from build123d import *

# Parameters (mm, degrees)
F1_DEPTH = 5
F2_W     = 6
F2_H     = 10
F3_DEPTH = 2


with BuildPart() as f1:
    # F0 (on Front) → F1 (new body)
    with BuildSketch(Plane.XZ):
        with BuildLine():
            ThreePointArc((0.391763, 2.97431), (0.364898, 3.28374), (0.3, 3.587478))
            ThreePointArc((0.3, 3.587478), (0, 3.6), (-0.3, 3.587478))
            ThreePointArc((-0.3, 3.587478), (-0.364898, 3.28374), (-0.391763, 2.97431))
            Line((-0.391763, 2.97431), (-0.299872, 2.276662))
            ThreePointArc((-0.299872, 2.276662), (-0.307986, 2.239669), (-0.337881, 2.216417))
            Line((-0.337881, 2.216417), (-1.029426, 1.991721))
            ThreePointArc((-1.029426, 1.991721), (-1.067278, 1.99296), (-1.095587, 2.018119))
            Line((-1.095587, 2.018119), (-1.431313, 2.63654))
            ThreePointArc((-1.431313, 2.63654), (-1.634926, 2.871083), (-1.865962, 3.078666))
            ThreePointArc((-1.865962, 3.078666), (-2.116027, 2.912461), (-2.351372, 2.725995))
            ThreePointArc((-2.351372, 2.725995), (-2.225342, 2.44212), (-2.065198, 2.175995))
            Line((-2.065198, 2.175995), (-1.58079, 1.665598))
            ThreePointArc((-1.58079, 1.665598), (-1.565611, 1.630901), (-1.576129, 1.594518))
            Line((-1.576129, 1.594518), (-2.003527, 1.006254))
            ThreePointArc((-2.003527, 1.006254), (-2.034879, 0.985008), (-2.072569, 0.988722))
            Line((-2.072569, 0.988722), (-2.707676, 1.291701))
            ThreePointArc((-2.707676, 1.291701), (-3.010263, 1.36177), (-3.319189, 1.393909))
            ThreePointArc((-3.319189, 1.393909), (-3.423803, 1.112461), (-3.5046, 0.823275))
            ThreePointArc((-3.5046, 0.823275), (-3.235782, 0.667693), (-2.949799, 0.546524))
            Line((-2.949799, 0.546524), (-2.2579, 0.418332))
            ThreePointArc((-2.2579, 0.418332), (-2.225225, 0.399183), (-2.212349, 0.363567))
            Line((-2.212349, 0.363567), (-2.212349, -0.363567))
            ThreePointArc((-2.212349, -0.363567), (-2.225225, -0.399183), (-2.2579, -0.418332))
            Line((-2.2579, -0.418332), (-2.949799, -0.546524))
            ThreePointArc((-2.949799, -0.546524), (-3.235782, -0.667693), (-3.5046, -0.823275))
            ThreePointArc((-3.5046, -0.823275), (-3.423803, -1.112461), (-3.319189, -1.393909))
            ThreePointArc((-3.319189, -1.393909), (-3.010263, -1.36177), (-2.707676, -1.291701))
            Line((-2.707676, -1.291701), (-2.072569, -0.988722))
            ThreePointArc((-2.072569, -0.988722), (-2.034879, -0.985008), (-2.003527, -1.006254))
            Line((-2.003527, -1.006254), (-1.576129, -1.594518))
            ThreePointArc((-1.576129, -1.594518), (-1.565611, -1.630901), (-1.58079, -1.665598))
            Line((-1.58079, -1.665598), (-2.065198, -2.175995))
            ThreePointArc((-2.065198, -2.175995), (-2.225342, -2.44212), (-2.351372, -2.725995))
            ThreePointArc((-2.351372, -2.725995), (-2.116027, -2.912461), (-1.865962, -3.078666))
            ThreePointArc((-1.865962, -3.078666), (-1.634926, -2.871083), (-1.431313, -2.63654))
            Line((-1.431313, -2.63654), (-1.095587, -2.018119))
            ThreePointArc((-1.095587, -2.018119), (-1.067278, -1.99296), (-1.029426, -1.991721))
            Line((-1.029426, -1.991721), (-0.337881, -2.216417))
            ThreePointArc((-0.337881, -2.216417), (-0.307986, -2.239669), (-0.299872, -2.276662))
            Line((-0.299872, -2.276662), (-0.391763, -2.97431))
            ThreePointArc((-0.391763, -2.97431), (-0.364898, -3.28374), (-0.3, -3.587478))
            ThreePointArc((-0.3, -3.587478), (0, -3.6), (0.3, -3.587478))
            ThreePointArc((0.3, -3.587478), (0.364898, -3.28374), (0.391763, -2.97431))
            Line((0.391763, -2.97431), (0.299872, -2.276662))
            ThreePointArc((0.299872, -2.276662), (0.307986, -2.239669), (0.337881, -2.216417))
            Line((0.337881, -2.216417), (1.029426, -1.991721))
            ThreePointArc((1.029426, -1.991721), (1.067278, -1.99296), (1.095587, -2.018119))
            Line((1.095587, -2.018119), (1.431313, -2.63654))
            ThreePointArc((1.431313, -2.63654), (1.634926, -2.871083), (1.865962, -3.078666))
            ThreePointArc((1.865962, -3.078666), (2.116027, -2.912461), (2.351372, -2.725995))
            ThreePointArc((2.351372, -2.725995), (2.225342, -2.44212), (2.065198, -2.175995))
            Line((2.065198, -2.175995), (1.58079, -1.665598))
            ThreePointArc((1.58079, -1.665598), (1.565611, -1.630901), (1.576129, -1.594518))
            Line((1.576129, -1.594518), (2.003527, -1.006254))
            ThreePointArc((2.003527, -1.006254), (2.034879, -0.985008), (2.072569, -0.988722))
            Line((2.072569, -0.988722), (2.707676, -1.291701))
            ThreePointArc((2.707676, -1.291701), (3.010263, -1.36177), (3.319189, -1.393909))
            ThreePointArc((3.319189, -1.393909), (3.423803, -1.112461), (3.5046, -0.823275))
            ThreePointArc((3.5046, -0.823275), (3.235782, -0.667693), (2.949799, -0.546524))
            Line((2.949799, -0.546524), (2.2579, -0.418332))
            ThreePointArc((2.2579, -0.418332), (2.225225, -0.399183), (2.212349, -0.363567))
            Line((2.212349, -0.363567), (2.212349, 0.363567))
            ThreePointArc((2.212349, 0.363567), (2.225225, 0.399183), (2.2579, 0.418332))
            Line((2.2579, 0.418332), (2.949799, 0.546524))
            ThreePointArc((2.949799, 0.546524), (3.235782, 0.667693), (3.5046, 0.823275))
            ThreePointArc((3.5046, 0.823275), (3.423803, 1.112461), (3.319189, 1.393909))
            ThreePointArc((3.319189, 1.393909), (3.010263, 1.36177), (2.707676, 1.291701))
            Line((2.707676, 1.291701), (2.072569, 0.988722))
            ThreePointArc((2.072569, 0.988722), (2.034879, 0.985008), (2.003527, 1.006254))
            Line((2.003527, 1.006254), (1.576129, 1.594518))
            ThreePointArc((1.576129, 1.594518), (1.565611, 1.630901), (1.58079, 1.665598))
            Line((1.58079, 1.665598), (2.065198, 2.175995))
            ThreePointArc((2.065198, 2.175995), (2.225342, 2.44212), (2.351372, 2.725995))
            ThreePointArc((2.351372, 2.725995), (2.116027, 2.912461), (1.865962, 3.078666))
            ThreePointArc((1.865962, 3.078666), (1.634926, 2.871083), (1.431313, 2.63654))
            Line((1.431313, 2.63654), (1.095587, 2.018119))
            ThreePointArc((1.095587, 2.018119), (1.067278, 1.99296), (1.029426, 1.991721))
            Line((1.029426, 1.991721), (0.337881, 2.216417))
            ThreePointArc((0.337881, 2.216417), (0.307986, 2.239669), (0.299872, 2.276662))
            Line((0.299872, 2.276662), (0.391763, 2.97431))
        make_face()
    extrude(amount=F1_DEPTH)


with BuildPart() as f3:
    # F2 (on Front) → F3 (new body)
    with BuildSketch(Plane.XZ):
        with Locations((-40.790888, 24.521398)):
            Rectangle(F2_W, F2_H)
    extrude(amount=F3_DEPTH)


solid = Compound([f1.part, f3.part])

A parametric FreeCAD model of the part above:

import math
import FreeCAD as App
import Part
import Sketcher
from FreeCAD import Vector
Q = App.Units.Quantity

doc = App.newDocument("Part")
body = doc.addObject("PartDesign::Body", "Body")

# Sketch on XZ plane
sketch1 = body.newObject("Sketcher::SketchObject", "Sketch")
sketch1.AttachmentSupport = (doc.getObject("XZ_Plane"), [""])
sketch1.MapMode = "FlatFace"
sketch1.addGeometry([
    Part.ArcOfCircle(Part.Circle(Vector(-2.115982, 2.912466, 0), Vector(0, 0, 1), 2.508507), math.radians(1.412685), math.radians(15.61006)),  # 0
    Part.ArcOfCircle(Part.Circle(Vector(0, 0.000064, 0), Vector(0, 0, 1), 3.599936), math.radians(85.219723), math.radians(94.780277)),  # 1
    Part.ArcOfCircle(Part.Circle(Vector(2.115982, 2.912466, 0), Vector(0, 0, 1), 2.508507), math.radians(164.38994), math.radians(178.587315)),  # 2
    Part.LineSegment(Vector(-0.391763, 2.97431, 0), Vector(-0.299872, 2.276662, 0)),  # 3
    Part.ArcOfCircle(Part.Circle(Vector(-0.355091, 2.269387, 0), Vector(0, 0, 1), 0.055696), math.radians(-72.00146), math.radians(7.505221)),  # 4
    Part.LineSegment(Vector(-0.337881, 2.216417, 0), Vector(-1.029426, 1.991721, 0)),  # 5
    Part.ArcOfCircle(Part.Circle(Vector(-1.046638, 2.04469, 0), Vector(0, 0, 1), 0.055695), math.radians(-151.50543), math.radians(-71.998212)),  # 6
    Part.LineSegment(Vector(-1.095587, 2.018119, 0), Vector(-1.431313, 2.63654, 0)),  # 7
    Part.ArcOfCircle(Part.Circle(Vector(-3.423796, 1.112465, 0), Vector(0, 0, 1), 2.508544), math.radians(37.412821), math.radians(51.609984)),  # 8
    Part.ArcOfCircle(Part.Circle(Vector(-0.000014, 0.000018, 0), Vector(0, 0, 1), 3.599977), math.radians(121.219779), math.radians(130.780219)),  # 9
    Part.ArcOfCircle(Part.Circle(Vector(0.00002, 3.600012, 0), Vector(0, 0, 1), 2.508576), math.radians(-159.609796), math.radians(-145.412808)),  # 10
    Part.LineSegment(Vector(-2.065198, 2.175995, 0), Vector(-1.58079, 1.665598, 0)),  # 11
    Part.ArcOfCircle(Part.Circle(Vector(-1.621188, 1.627256, 0), Vector(0, 0, 1), 0.055697), math.radians(-36.000445), math.radians(43.50393)),  # 12
    Part.LineSegment(Vector(-1.576129, 1.594518, 0), Vector(-2.003527, 1.006254, 0)),  # 13
    Part.ArcOfCircle(Part.Circle(Vector(-2.048587, 1.038992, 0), Vector(0, 0, 1), 0.055698), math.radians(-115.503625), math.radians(-36.000171)),  # 14
    Part.LineSegment(Vector(-2.072569, 0.988722, 0), Vector(-2.707676, 1.291701, 0)),  # 15
    Part.ArcOfCircle(Part.Circle(Vector(-3.423802, -1.112444, 0), Vector(0, 0, 1), 2.508536), math.radians(73.41272), math.radians(87.609917)),  # 16
    Part.ArcOfCircle(Part.Circle(Vector(0.000148, -0.000053, 0), Vector(0, 0, 1), 3.600157), math.radians(157.219944), math.radians(166.779915)),  # 17
    Part.ArcOfCircle(Part.Circle(Vector(-2.116041, 2.912432, 0), Vector(0, 0, 1), 2.50852), math.radians(-123.610016), math.radians(-109.412715)),  # 18
    Part.LineSegment(Vector(-2.949799, 0.546524, 0), Vector(-2.2579, 0.418332, 0)),  # 19
    Part.ArcOfCircle(Part.Circle(Vector(-2.268046, 0.363567, 0), Vector(0, 0, 1), 0.055697), math.radians(0.000401), math.radians(79.503842)),  # 20
    Part.LineSegment(Vector(-2.212349, 0.363567, 0), Vector(-2.212349, -0.363567, 0)),  # 21
    Part.ArcOfCircle(Part.Circle(Vector(-2.268046, -0.363567, 0), Vector(0, 0, 1), 0.055697), math.radians(-79.503842), math.radians(-0.000401)),  # 22
    Part.LineSegment(Vector(-2.2579, -0.418332, 0), Vector(-2.949799, -0.546524, 0)),  # 23
    Part.ArcOfCircle(Part.Circle(Vector(-2.116041, -2.912432, 0), Vector(0, 0, 1), 2.50852), math.radians(109.412715), math.radians(123.610016)),  # 24
    Part.ArcOfCircle(Part.Circle(Vector(0.000148, 0.000053, 0), Vector(0, 0, 1), 3.600157), math.radians(-166.779915), math.radians(-157.219944)),  # 25
    Part.ArcOfCircle(Part.Circle(Vector(-3.423802, 1.112444, 0), Vector(0, 0, 1), 2.508536), math.radians(-87.609917), math.radians(-73.41272)),  # 26
    Part.LineSegment(Vector(-2.707676, -1.291701, 0), Vector(-2.072569, -0.988722, 0)),  # 27
    Part.ArcOfCircle(Part.Circle(Vector(-2.048587, -1.038992, 0), Vector(0, 0, 1), 0.055698), math.radians(36.000171), math.radians(115.503625)),  # 28
    Part.LineSegment(Vector(-2.003527, -1.006254, 0), Vector(-1.576129, -1.594518, 0)),  # 29
    Part.ArcOfCircle(Part.Circle(Vector(-1.621188, -1.627256, 0), Vector(0, 0, 1), 0.055697), math.radians(-43.50393), math.radians(36.000445)),  # 30
    Part.LineSegment(Vector(-1.58079, -1.665598, 0), Vector(-2.065198, -2.175995, 0)),  # 31
    Part.ArcOfCircle(Part.Circle(Vector(0.00002, -3.600012, 0), Vector(0, 0, 1), 2.508576), math.radians(145.412808), math.radians(159.609796)),  # 32
    Part.ArcOfCircle(Part.Circle(Vector(-0.000014, -0.000018, 0), Vector(0, 0, 1), 3.599977), math.radians(-130.780219), math.radians(-121.219779)),  # 33
    Part.ArcOfCircle(Part.Circle(Vector(-3.423796, -1.112465, 0), Vector(0, 0, 1), 2.508544), math.radians(-51.609984), math.radians(-37.412821)),  # 34
    Part.LineSegment(Vector(-1.431313, -2.63654, 0), Vector(-1.095587, -2.018119, 0)),  # 35
    Part.ArcOfCircle(Part.Circle(Vector(-1.046638, -2.04469, 0), Vector(0, 0, 1), 0.055695), math.radians(71.998212), math.radians(151.50543)),  # 36
    Part.LineSegment(Vector(-1.029426, -1.991721, 0), Vector(-0.337881, -2.216417, 0)),  # 37
    Part.ArcOfCircle(Part.Circle(Vector(-0.355091, -2.269387, 0), Vector(0, 0, 1), 0.055696), math.radians(-7.505221), math.radians(72.00146)),  # 38
    Part.LineSegment(Vector(-0.299872, -2.276662, 0), Vector(-0.391763, -2.97431, 0)),  # 39
    Part.ArcOfCircle(Part.Circle(Vector(2.115982, -2.912466, 0), Vector(0, 0, 1), 2.508507), math.radians(-178.587315), math.radians(-164.38994)),  # 40
    Part.ArcOfCircle(Part.Circle(Vector(0, -0.000064, 0), Vector(0, 0, 1), 3.599936), math.radians(-94.780277), math.radians(-85.219723)),  # 41
    Part.ArcOfCircle(Part.Circle(Vector(-2.115982, -2.912466, 0), Vector(0, 0, 1), 2.508507), math.radians(-15.61006), math.radians(-1.412685)),  # 42
    Part.LineSegment(Vector(0.391763, -2.97431, 0), Vector(0.299872, -2.276662, 0)),  # 43
    Part.ArcOfCircle(Part.Circle(Vector(0.355091, -2.269387, 0), Vector(0, 0, 1), 0.055696), math.radians(107.99854), math.radians(187.505221)),  # 44
    Part.LineSegment(Vector(0.337881, -2.216417, 0), Vector(1.029426, -1.991721, 0)),  # 45
    Part.ArcOfCircle(Part.Circle(Vector(1.046638, -2.04469, 0), Vector(0, 0, 1), 0.055695), math.radians(28.49457), math.radians(108.001788)),  # 46
    Part.LineSegment(Vector(1.095587, -2.018119, 0), Vector(1.431313, -2.63654, 0)),  # 47
    Part.ArcOfCircle(Part.Circle(Vector(3.423796, -1.112465, 0), Vector(0, 0, 1), 2.508544), math.radians(-142.587179), math.radians(-128.390016)),  # 48
    Part.ArcOfCircle(Part.Circle(Vector(0.000014, -0.000018, 0), Vector(0, 0, 1), 3.599977), math.radians(-58.780221), math.radians(-49.219781)),  # 49
    Part.ArcOfCircle(Part.Circle(Vector(-0.00002, -3.600012, 0), Vector(0, 0, 1), 2.508576), math.radians(20.390204), math.radians(34.587192)),  # 50
    Part.LineSegment(Vector(2.065198, -2.175995, 0), Vector(1.58079, -1.665598, 0)),  # 51
    Part.ArcOfCircle(Part.Circle(Vector(1.621188, -1.627256, 0), Vector(0, 0, 1), 0.055697), math.radians(143.999555), math.radians(223.50393)),  # 52
    Part.LineSegment(Vector(1.576129, -1.594518, 0), Vector(2.003527, -1.006254, 0)),  # 53
    Part.ArcOfCircle(Part.Circle(Vector(2.048587, -1.038992, 0), Vector(0, 0, 1), 0.055698), math.radians(64.496375), math.radians(143.999829)),  # 54
    Part.LineSegment(Vector(2.072569, -0.988722, 0), Vector(2.707676, -1.291701, 0)),  # 55
    Part.ArcOfCircle(Part.Circle(Vector(3.423802, 1.112444, 0), Vector(0, 0, 1), 2.508536), math.radians(-106.58728), math.radians(-92.390083)),  # 56
    Part.ArcOfCircle(Part.Circle(Vector(-0.000148, 0.000053, 0), Vector(0, 0, 1), 3.600157), math.radians(-22.780056), math.radians(-13.220085)),  # 57
    Part.ArcOfCircle(Part.Circle(Vector(2.116041, -2.912432, 0), Vector(0, 0, 1), 2.50852), math.radians(56.389984), math.radians(70.587285)),  # 58
    Part.LineSegment(Vector(2.949799, -0.546524, 0), Vector(2.2579, -0.418332, 0)),  # 59
    Part.ArcOfCircle(Part.Circle(Vector(2.268046, -0.363567, 0), Vector(0, 0, 1), 0.055697), math.radians(-179.999599), math.radians(-100.496158)),  # 60
    Part.LineSegment(Vector(2.212349, -0.363567, 0), Vector(2.212349, 0.363567, 0)),  # 61
    Part.ArcOfCircle(Part.Circle(Vector(2.268046, 0.363567, 0), Vector(0, 0, 1), 0.055697), math.radians(100.496158), math.radians(179.999599)),  # 62
    Part.LineSegment(Vector(2.2579, 0.418332, 0), Vector(2.949799, 0.546524, 0)),  # 63
    Part.ArcOfCircle(Part.Circle(Vector(2.116041, 2.912432, 0), Vector(0, 0, 1), 2.50852), math.radians(-70.587285), math.radians(-56.389984)),  # 64
    Part.ArcOfCircle(Part.Circle(Vector(-0.000148, -0.000053, 0), Vector(0, 0, 1), 3.600157), math.radians(13.220085), math.radians(22.780056)),  # 65
    Part.ArcOfCircle(Part.Circle(Vector(3.423802, -1.112444, 0), Vector(0, 0, 1), 2.508536), math.radians(92.390083), math.radians(106.58728)),  # 66
    Part.LineSegment(Vector(2.707676, 1.291701, 0), Vector(2.072569, 0.988722, 0)),  # 67
    Part.ArcOfCircle(Part.Circle(Vector(2.048587, 1.038992, 0), Vector(0, 0, 1), 0.055698), math.radians(-143.999829), math.radians(-64.496375)),  # 68
    Part.LineSegment(Vector(2.003527, 1.006254, 0), Vector(1.576129, 1.594518, 0)),  # 69
    Part.ArcOfCircle(Part.Circle(Vector(1.621188, 1.627256, 0), Vector(0, 0, 1), 0.055697), math.radians(136.49607), math.radians(216.000445)),  # 70
    Part.LineSegment(Vector(1.58079, 1.665598, 0), Vector(2.065198, 2.175995, 0)),  # 71
    Part.ArcOfCircle(Part.Circle(Vector(-0.00002, 3.600012, 0), Vector(0, 0, 1), 2.508576), math.radians(-34.587192), math.radians(-20.390204)),  # 72
    Part.ArcOfCircle(Part.Circle(Vector(0.000014, 0.000018, 0), Vector(0, 0, 1), 3.599977), math.radians(49.219781), math.radians(58.780221)),  # 73
    Part.ArcOfCircle(Part.Circle(Vector(3.423796, 1.112465, 0), Vector(0, 0, 1), 2.508544), math.radians(128.390016), math.radians(142.587179)),  # 74
    Part.LineSegment(Vector(1.431313, 2.63654, 0), Vector(1.095587, 2.018119, 0)),  # 75
    Part.ArcOfCircle(Part.Circle(Vector(1.046638, 2.04469, 0), Vector(0, 0, 1), 0.055695), math.radians(-108.001788), math.radians(-28.49457)),  # 76
    Part.LineSegment(Vector(1.029426, 1.991721, 0), Vector(0.337881, 2.216417, 0)),  # 77
    Part.ArcOfCircle(Part.Circle(Vector(0.355091, 2.269387, 0), Vector(0, 0, 1), 0.055696), math.radians(172.494779), math.radians(252.00146)),  # 78
    Part.LineSegment(Vector(0.299872, 2.276662, 0), Vector(0.391763, 2.97431, 0)),  # 79
], False)
sketch1.addConstraint([
    Sketcher.Constraint("Coincident", 0, 2, 1, 1),
    Sketcher.Constraint("Coincident", 1, 2, 2, 1),
    Sketcher.Constraint("Coincident", 2, 2, 3, 1),
    Sketcher.Constraint("Coincident", 3, 2, 4, 2),
    Sketcher.Constraint("Coincident", 4, 1, 5, 1),
    Sketcher.Constraint("Coincident", 5, 2, 6, 2),
    Sketcher.Constraint("Coincident", 6, 1, 7, 1),
    Sketcher.Constraint("Coincident", 7, 2, 8, 1),
    Sketcher.Constraint("Coincident", 8, 2, 9, 1),
    Sketcher.Constraint("Coincident", 9, 2, 10, 1),
    Sketcher.Constraint("Coincident", 10, 2, 11, 1),
    Sketcher.Constraint("Coincident", 11, 2, 12, 2),
    Sketcher.Constraint("Coincident", 12, 1, 13, 1),
    Sketcher.Constraint("Coincident", 13, 2, 14, 2),
    Sketcher.Constraint("Coincident", 14, 1, 15, 1),
    Sketcher.Constraint("Coincident", 15, 2, 16, 1),
    Sketcher.Constraint("Coincident", 16, 2, 17, 1),
    Sketcher.Constraint("Coincident", 17, 2, 18, 1),
    Sketcher.Constraint("Coincident", 18, 2, 19, 1),
    Sketcher.Constraint("Coincident", 19, 2, 20, 2),
    Sketcher.Constraint("Coincident", 20, 1, 21, 1),
    Sketcher.Constraint("Coincident", 21, 2, 22, 2),
    Sketcher.Constraint("Coincident", 22, 1, 23, 1),
    Sketcher.Constraint("Coincident", 23, 2, 24, 1),
    Sketcher.Constraint("Coincident", 24, 2, 25, 1),
    Sketcher.Constraint("Coincident", 25, 2, 26, 1),
    Sketcher.Constraint("Coincident", 26, 2, 27, 1),
    Sketcher.Constraint("Coincident", 27, 2, 28, 2),
    Sketcher.Constraint("Coincident", 28, 1, 29, 1),
    Sketcher.Constraint("Coincident", 29, 2, 30, 2),
    Sketcher.Constraint("Coincident", 30, 1, 31, 1),
    Sketcher.Constraint("Coincident", 31, 2, 32, 1),
    Sketcher.Constraint("Coincident", 32, 2, 33, 1),
    Sketcher.Constraint("Coincident", 33, 2, 34, 1),
    Sketcher.Constraint("Coincident", 34, 2, 35, 1),
    Sketcher.Constraint("Coincident", 35, 2, 36, 2),
    Sketcher.Constraint("Coincident", 36, 1, 37, 1),
    Sketcher.Constraint("Coincident", 37, 2, 38, 2),
    Sketcher.Constraint("Coincident", 38, 1, 39, 1),
    Sketcher.Constraint("Coincident", 39, 2, 40, 1),
    Sketcher.Constraint("Coincident", 40, 2, 41, 1),
    Sketcher.Constraint("Coincident", 41, 2, 42, 1),
    Sketcher.Constraint("Coincident", 42, 2, 43, 1),
    Sketcher.Constraint("Coincident", 43, 2, 44, 2),
    Sketcher.Constraint("Coincident", 44, 1, 45, 1),
    Sketcher.Constraint("Coincident", 45, 2, 46, 2),
    Sketcher.Constraint("Coincident", 46, 1, 47, 1),
    Sketcher.Constraint("Coincident", 47, 2, 48, 1),
    Sketcher.Constraint("Coincident", 48, 2, 49, 1),
    Sketcher.Constraint("Coincident", 49, 2, 50, 1),
    Sketcher.Constraint("Coincident", 50, 2, 51, 1),
    Sketcher.Constraint("Coincident", 51, 2, 52, 2),
    Sketcher.Constraint("Coincident", 52, 1, 53, 1),
    Sketcher.Constraint("Coincident", 53, 2, 54, 2),
    Sketcher.Constraint("Coincident", 54, 1, 55, 1),
    Sketcher.Constraint("Coincident", 55, 2, 56, 1),
    Sketcher.Constraint("Coincident", 56, 2, 57, 1),
    Sketcher.Constraint("Coincident", 57, 2, 58, 1),
    Sketcher.Constraint("Coincident", 58, 2, 59, 1),
    Sketcher.Constraint("Coincident", 59, 2, 60, 2),
    Sketcher.Constraint("Coincident", 60, 1, 61, 1),
    Sketcher.Constraint("Coincident", 61, 2, 62, 2),
    Sketcher.Constraint("Coincident", 62, 1, 63, 1),
    Sketcher.Constraint("Coincident", 63, 2, 64, 1),
    Sketcher.Constraint("Coincident", 64, 2, 65, 1),
    Sketcher.Constraint("Coincident", 65, 2, 66, 1),
    Sketcher.Constraint("Coincident", 66, 2, 67, 1),
    Sketcher.Constraint("Coincident", 67, 2, 68, 2),
    Sketcher.Constraint("Coincident", 68, 1, 69, 1),
    Sketcher.Constraint("Coincident", 69, 2, 70, 2),
    Sketcher.Constraint("Coincident", 70, 1, 71, 1),
    Sketcher.Constraint("Coincident", 71, 2, 72, 1),
    Sketcher.Constraint("Coincident", 72, 2, 73, 1),
    Sketcher.Constraint("Coincident", 73, 2, 74, 1),
    Sketcher.Constraint("Coincident", 74, 2, 75, 1),
    Sketcher.Constraint("Coincident", 75, 2, 76, 2),
    Sketcher.Constraint("Coincident", 76, 1, 77, 1),
    Sketcher.Constraint("Coincident", 77, 2, 78, 2),
    Sketcher.Constraint("Coincident", 78, 1, 79, 1),
    Sketcher.Constraint("Coincident", 79, 2, 0, 1),
    Sketcher.Constraint("Vertical", 21),
    Sketcher.Constraint("Vertical", 61),
    Sketcher.Constraint("PointOnObject", 1, 3, -2),
    Sketcher.Constraint("PointOnObject", 41, 3, -2),
    Sketcher.Constraint("DistanceX", -1, 1, 0, 2, Q("0.3 mm")),
    Sketcher.Constraint("DistanceX", 1, 2, -1, 1, Q("0.3 mm")),
    Sketcher.Constraint("DistanceX", 40, 2, -1, 1, Q("0.3 mm")),
    Sketcher.Constraint("DistanceX", -1, 1, 41, 2, Q("0.3 mm")),
    Sketcher.Constraint("Radius", 18, Q("2.50852 mm")),
    Sketcher.Constraint("Radius", 24, Q("2.50852 mm")),
    Sketcher.Constraint("Radius", 58, Q("2.50852 mm")),
    Sketcher.Constraint("Radius", 64, Q("2.50852 mm")),
    Sketcher.Constraint("Radius", 0, Q("2.508507 mm")),
    Sketcher.Constraint("Radius", 1, Q("3.599936 mm")),
    Sketcher.Constraint("Radius", 2, Q("2.508507 mm")),
    Sketcher.Constraint("Radius", 4, Q("0.055696 mm")),
    Sketcher.Constraint("Radius", 6, Q("0.055695 mm")),
    Sketcher.Constraint("Radius", 8, Q("2.508544 mm")),
    Sketcher.Constraint("Radius", 9, Q("3.599977 mm")),
    Sketcher.Constraint("Radius", 10, Q("2.508576 mm")),
    Sketcher.Constraint("Radius", 12, Q("0.055697 mm")),
    Sketcher.Constraint("Radius", 14, Q("0.055698 mm")),
    Sketcher.Constraint("Radius", 16, Q("2.508536 mm")),
    Sketcher.Constraint("Radius", 17, Q("3.600157 mm")),
    Sketcher.Constraint("Radius", 20, Q("0.055697 mm")),
    Sketcher.Constraint("Radius", 22, Q("0.055697 mm")),
    Sketcher.Constraint("Radius", 25, Q("3.600157 mm")),
    Sketcher.Constraint("Radius", 26, Q("2.508536 mm")),
    Sketcher.Constraint("Radius", 28, Q("0.055698 mm")),
    Sketcher.Constraint("Radius", 30, Q("0.055697 mm")),
    Sketcher.Constraint("Radius", 32, Q("2.508576 mm")),
    Sketcher.Constraint("Radius", 33, Q("3.599977 mm")),
    Sketcher.Constraint("Radius", 34, Q("2.508544 mm")),
    Sketcher.Constraint("Radius", 36, Q("0.055695 mm")),
    Sketcher.Constraint("Radius", 38, Q("0.055696 mm")),
    Sketcher.Constraint("Radius", 40, Q("2.508507 mm")),
    Sketcher.Constraint("Radius", 41, Q("3.599936 mm")),
    Sketcher.Constraint("Radius", 42, Q("2.508507 mm")),
    Sketcher.Constraint("Radius", 44, Q("0.055696 mm")),
    Sketcher.Constraint("Radius", 46, Q("0.055695 mm")),
    Sketcher.Constraint("Radius", 48, Q("2.508544 mm")),
    Sketcher.Constraint("Radius", 49, Q("3.599977 mm")),
    Sketcher.Constraint("Radius", 50, Q("2.508576 mm")),
    Sketcher.Constraint("Radius", 52, Q("0.055697 mm")),
    Sketcher.Constraint("Radius", 54, Q("0.055698 mm")),
    Sketcher.Constraint("Radius", 56, Q("2.508536 mm")),
    Sketcher.Constraint("Radius", 57, Q("3.600157 mm")),
    Sketcher.Constraint("Radius", 60, Q("0.055697 mm")),
    Sketcher.Constraint("Radius", 62, Q("0.055697 mm")),
    Sketcher.Constraint("Radius", 65, Q("3.600157 mm")),
    Sketcher.Constraint("Radius", 66, Q("2.508536 mm")),
    Sketcher.Constraint("Radius", 68, Q("0.055698 mm")),
    Sketcher.Constraint("Radius", 70, Q("0.055697 mm")),
    Sketcher.Constraint("Radius", 72, Q("2.508576 mm")),
    Sketcher.Constraint("Radius", 73, Q("3.599977 mm")),
    Sketcher.Constraint("Radius", 74, Q("2.508544 mm")),
    Sketcher.Constraint("Radius", 76, Q("0.055695 mm")),
    Sketcher.Constraint("Radius", 78, Q("0.055696 mm")),
    Sketcher.Constraint("DistanceX", 16, 3, -1, 1, Q("3.423802 mm")),
    Sketcher.Constraint("DistanceX", 26, 3, -1, 1, Q("3.423802 mm")),
    Sketcher.Constraint("DistanceX", -1, 1, 56, 3, Q("3.423802 mm")),
    Sketcher.Constraint("DistanceX", -1, 1, 66, 3, Q("3.423802 mm")),
    Sketcher.Constraint("DistanceY", -1, 1, 15, 2, Q("1.291701 mm")),
    Sketcher.Constraint("DistanceX", 17, 2, -1, 1, Q("3.5046 mm")),
    Sketcher.Constraint("DistanceX", 18, 2, -1, 1, Q("2.949799 mm")),
    Sketcher.Constraint("DistanceX", 19, 2, -1, 1, Q("2.2579 mm")),
    Sketcher.Constraint("DistanceX", 22, 1, -1, 1, Q("2.2579 mm")),
    Sketcher.Constraint("DistanceX", 23, 2, -1, 1, Q("2.949799 mm")),
    Sketcher.Constraint("DistanceX", 24, 2, -1, 1, Q("3.5046 mm")),
    Sketcher.Constraint("DistanceY", 26, 2, -1, 1, Q("1.291701 mm")),
    Sketcher.Constraint("DistanceY", 30, 1, -1, 1, Q("1.665598 mm")),
    Sketcher.Constraint("DistanceX", 31, 2, -1, 1, Q("2.065198 mm")),
    Sketcher.Constraint("DistanceY", 55, 2, -1, 1, Q("1.291701 mm")),
    Sketcher.Constraint("DistanceX", -1, 1, 57, 2, Q("3.5046 mm")),
    Sketcher.Constraint("DistanceX", -1, 1, 58, 2, Q("2.949799 mm")),
    Sketcher.Constraint("DistanceX", -1, 1, 59, 2, Q("2.2579 mm")),
    Sketcher.Constraint("DistanceX", -1, 1, 62, 1, Q("2.2579 mm")),
    Sketcher.Constraint("DistanceX", -1, 1, 63, 2, Q("2.949799 mm")),
    Sketcher.Constraint("DistanceX", -1, 1, 64, 2, Q("3.5046 mm")),
    Sketcher.Constraint("DistanceY", -1, 1, 66, 2, Q("1.291701 mm")),
    Sketcher.Constraint("DistanceY", -1, 1, 70, 1, Q("1.665598 mm")),
    Sketcher.Constraint("DistanceX", -1, 1, 71, 2, Q("2.065198 mm")),
    Sketcher.Constraint("DistanceY", 21, 2, 21, 1, Q("0.727134 mm")),
    Sketcher.Constraint("DistanceY", 61, 1, 61, 2, Q("0.727134 mm")),
    Sketcher.Constraint("DistanceX", 0, 3, -1, 1, Q("2.115982 mm")),
    Sketcher.Constraint("DistanceX", -1, 1, 2, 3, Q("2.115982 mm")),
    Sketcher.Constraint("DistanceX", 4, 3, -1, 1, Q("0.355091 mm")),
    Sketcher.Constraint("DistanceX", 6, 3, -1, 1, Q("1.046638 mm")),
    Sketcher.Constraint("DistanceY", -1, 1, 6, 3, Q("2.04469 mm")),
    Sketcher.Constraint("DistanceX", 12, 3, -1, 1, Q("1.621188 mm")),
    Sketcher.Constraint("DistanceX", -1, 1, 17, 3, Q("0.000148 mm")),
    Sketcher.Constraint("DistanceX", 18, 3, -1, 1, Q("2.116041 mm")),
    Sketcher.Constraint("DistanceY", -1, 1, 18, 3, Q("2.912432 mm")),
    Sketcher.Constraint("DistanceX", 24, 3, -1, 1, Q("2.116041 mm")),
    Sketcher.Constraint("DistanceY", 24, 3, -1, 1, Q("2.912432 mm")),
    Sketcher.Constraint("DistanceX", -1, 1, 25, 3, Q("0.000148 mm")),
    Sketcher.Constraint("DistanceX", 30, 3, -1, 1, Q("1.621188 mm")),
    Sketcher.Constraint("DistanceX", 36, 3, -1, 1, Q("1.046638 mm")),
    Sketcher.Constraint("DistanceY", 36, 3, -1, 1, Q("2.04469 mm")),
    Sketcher.Constraint("DistanceX", 38, 3, -1, 1, Q("0.355091 mm")),
    Sketcher.Constraint("DistanceX", -1, 1, 40, 3, Q("2.115982 mm")),
    Sketcher.Constraint("DistanceX", 42, 3, -1, 1, Q("2.115982 mm")),
    Sketcher.Constraint("DistanceX", -1, 1, 44, 3, Q("0.355091 mm")),
    Sketcher.Constraint("DistanceX", -1, 1, 46, 3, Q("1.046638 mm")),
    Sketcher.Constraint("DistanceY", 46, 3, -1, 1, Q("2.04469 mm")),
    Sketcher.Constraint("DistanceX", -1, 1, 52, 3, Q("1.621188 mm")),
    Sketcher.Constraint("DistanceX", 57, 3, -1, 1, Q("0.000148 mm")),
    Sketcher.Constraint("DistanceX", -1, 1, 58, 3, Q("2.116041 mm")),
    Sketcher.Constraint("DistanceY", 58, 3, -1, 1, Q("2.912432 mm")),
    Sketcher.Constraint("DistanceX", -1, 1, 64, 3, Q("2.116041 mm")),
    Sketcher.Constraint("DistanceY", -1, 1, 64, 3, Q("2.912432 mm")),
    Sketcher.Constraint("DistanceX", 65, 3, -1, 1, Q("0.000148 mm")),
    Sketcher.Constraint("DistanceX", -1, 1, 70, 3, Q("1.621188 mm")),
    Sketcher.Constraint("DistanceX", -1, 1, 76, 3, Q("1.046638 mm")),
    Sketcher.Constraint("DistanceY", -1, 1, 76, 3, Q("2.04469 mm")),
    Sketcher.Constraint("DistanceX", -1, 1, 78, 3, Q("0.355091 mm")),
    Sketcher.Constraint("DistanceY", -1, 1, 1, 2, Q("3.587478 mm")),
    Sketcher.Constraint("DistanceY", -1, 1, 2, 2, Q("2.97431 mm")),
    Sketcher.Constraint("DistanceY", -1, 1, 3, 2, Q("2.276662 mm")),
    Sketcher.Constraint("DistanceX", 4, 1, -1, 1, Q("0.337881 mm")),
    Sketcher.Constraint("DistanceY", -1, 1, 5, 2, Q("1.991721 mm")),
    Sketcher.Constraint("DistanceY", -1, 1, 6, 1, Q("2.018119 mm")),
    Sketcher.Constraint("DistanceY", -1, 1, 7, 2, Q("2.63654 mm")),
    Sketcher.Constraint("DistanceX", 9, 2, -1, 1, Q("2.351372 mm")),
    Sketcher.Constraint("DistanceX", 11, 2, -1, 1, Q("1.58079 mm")),
    Sketcher.Constraint("DistanceX", 12, 1, -1, 1, Q("1.576129 mm")),
    Sketcher.Constraint("DistanceX", 14, 1, -1, 1, Q("2.072569 mm")),
    Sketcher.Constraint("DistanceY", -1, 1, 14, 1, Q("0.988722 mm")),
    Sketcher.Constraint("DistanceX", 16, 2, -1, 1, Q("3.319189 mm")),
    Sketcher.Constraint("DistanceX", 20, 1, -1, 1, Q("2.212349 mm")),
    Sketcher.Constraint("DistanceY", 22, 1, -1, 1, Q("0.418332 mm")),
    Sketcher.Constraint("DistanceX", 25, 2, -1, 1, Q("3.319189 mm")),
    Sketcher.Constraint("DistanceX", 27, 2, -1, 1, Q("2.072569 mm")),
    Sketcher.Constraint("DistanceY", 27, 2, -1, 1, Q("0.988722 mm")),
    Sketcher.Constraint("DistanceX", 29, 2, -1, 1, Q("1.576129 mm")),
    Sketcher.Constraint("DistanceY", 29, 2, -1, 1, Q("1.594518 mm")),
    Sketcher.Constraint("DistanceX", 32, 2, -1, 1, Q("2.351372 mm")),
    Sketcher.Constraint("DistanceX", 33, 2, -1, 1, Q("1.865962 mm")),
    Sketcher.Constraint("DistanceY", 34, 2, -1, 1, Q("2.63654 mm")),
    Sketcher.Constraint("DistanceY", 35, 2, -1, 1, Q("2.018119 mm")),
    Sketcher.Constraint("DistanceY", 36, 1, -1, 1, Q("1.991721 mm")),
    Sketcher.Constraint("DistanceX", 37, 2, -1, 1, Q("0.337881 mm")),
    Sketcher.Constraint("DistanceY", 38, 1, -1, 1, Q("2.276662 mm")),
    Sketcher.Constraint("DistanceY", 39, 2, -1, 1, Q("2.97431 mm")),
    Sketcher.Constraint("DistanceY", 41, 2, -1, 1, Q("3.587478 mm")),
    Sketcher.Constraint("DistanceY", 42, 2, -1, 1, Q("2.97431 mm")),
    Sketcher.Constraint("DistanceY", 43, 2, -1, 1, Q("2.276662 mm")),
    Sketcher.Constraint("DistanceX", -1, 1, 44, 1, Q("0.337881 mm")),
    Sketcher.Constraint("DistanceY", 45, 2, -1, 1, Q("1.991721 mm")),
    Sketcher.Constraint("DistanceY", 46, 1, -1, 1, Q("2.018119 mm")),
    Sketcher.Constraint("DistanceY", 47, 2, -1, 1, Q("2.63654 mm")),
    Sketcher.Constraint("DistanceX", -1, 1, 49, 2, Q("2.351372 mm")),
    Sketcher.Constraint("DistanceX", -1, 1, 51, 2, Q("1.58079 mm")),
    Sketcher.Constraint("DistanceX", -1, 1, 52, 1, Q("1.576129 mm")),
    Sketcher.Constraint("DistanceX", -1, 1, 54, 1, Q("2.072569 mm")),
    Sketcher.Constraint("DistanceY", 54, 1, -1, 1, Q("0.988722 mm")),
    Sketcher.Constraint("DistanceX", -1, 1, 56, 2, Q("3.319189 mm")),
    Sketcher.Constraint("DistanceX", -1, 1, 60, 1, Q("2.212349 mm")),
    Sketcher.Constraint("DistanceY", -1, 1, 62, 1, Q("0.418332 mm")),
    Sketcher.Constraint("DistanceX", -1, 1, 65, 2, Q("3.319189 mm")),
    Sketcher.Constraint("DistanceX", -1, 1, 67, 2, Q("2.072569 mm")),
    Sketcher.Constraint("DistanceY", -1, 1, 67, 2, Q("0.988722 mm")),
    Sketcher.Constraint("DistanceX", -1, 1, 69, 2, Q("1.576129 mm")),
    Sketcher.Constraint("DistanceY", -1, 1, 69, 2, Q("1.594518 mm")),
    Sketcher.Constraint("DistanceX", -1, 1, 72, 2, Q("2.351372 mm")),
    Sketcher.Constraint("DistanceX", -1, 1, 73, 2, Q("1.865962 mm")),
    Sketcher.Constraint("DistanceY", -1, 1, 74, 2, Q("2.63654 mm")),
    Sketcher.Constraint("DistanceY", -1, 1, 75, 2, Q("2.018119 mm")),
    Sketcher.Constraint("DistanceY", -1, 1, 76, 1, Q("1.991721 mm")),
    Sketcher.Constraint("DistanceX", -1, 1, 77, 2, Q("0.337881 mm")),
    Sketcher.Constraint("DistanceY", -1, 1, 78, 1, Q("2.276662 mm")),
    Sketcher.Constraint("DistanceY", -1, 1, 79, 2, Q("2.97431 mm")),
    Sketcher.Constraint("Distance", 5, Q("0.727133 mm")),
    Sketcher.Constraint("Distance", 7, Q("0.703674 mm")),
    Sketcher.Constraint("Distance", 11, Q("0.703673 mm")),
    Sketcher.Constraint("Distance", 13, Q("0.727134 mm")),
    Sketcher.Constraint("Distance", 19, Q("0.703674 mm")),
    Sketcher.Constraint("Distance", 29, Q("0.727134 mm")),
    Sketcher.Constraint("Distance", 31, Q("0.703673 mm")),
    Sketcher.Constraint("Distance", 35, Q("0.703674 mm")),
    Sketcher.Constraint("Distance", 37, Q("0.727133 mm")),
    Sketcher.Constraint("Distance", 45, Q("0.727133 mm")),
    Sketcher.Constraint("Distance", 47, Q("0.703674 mm")),
    Sketcher.Constraint("Distance", 51, Q("0.703673 mm")),
    Sketcher.Constraint("Distance", 53, Q("0.727134 mm")),
    Sketcher.Constraint("Distance", 59, Q("0.703674 mm")),
    Sketcher.Constraint("Distance", 69, Q("0.727134 mm")),
    Sketcher.Constraint("Distance", 71, Q("0.703673 mm")),
    Sketcher.Constraint("Distance", 75, Q("0.703674 mm")),
    Sketcher.Constraint("Distance", 77, Q("0.727133 mm")),
    Sketcher.Constraint("DistanceX", 8, 3, -1, 1, Q("3.423796 mm")),
    Sketcher.Constraint("DistanceY", -1, 1, 10, 3, Q("3.600012 mm")),
    Sketcher.Constraint("DistanceY", -1, 1, 12, 3, Q("1.627256 mm")),
    Sketcher.Constraint("DistanceX", 14, 3, -1, 1, Q("2.048587 mm")),
    Sketcher.Constraint("DistanceX", 28, 3, -1, 1, Q("2.048587 mm")),
    Sketcher.Constraint("DistanceY", 32, 3, -1, 1, Q("3.600012 mm")),
    Sketcher.Constraint("DistanceX", 34, 3, -1, 1, Q("3.423796 mm")),
    Sketcher.Constraint("DistanceX", -1, 1, 48, 3, Q("3.423796 mm")),
    Sketcher.Constraint("DistanceY", 50, 3, -1, 1, Q("3.600012 mm")),
    Sketcher.Constraint("DistanceY", 52, 3, -1, 1, Q("1.627256 mm")),
    Sketcher.Constraint("DistanceX", -1, 1, 54, 3, Q("2.048587 mm")),
    Sketcher.Constraint("DistanceX", -1, 1, 68, 3, Q("2.048587 mm")),
    Sketcher.Constraint("DistanceY", -1, 1, 72, 3, Q("3.600012 mm")),
    Sketcher.Constraint("DistanceX", -1, 1, 74, 3, Q("3.423796 mm")),
    Sketcher.Constraint("DistanceX", 8, 2, -1, 1, Q("1.865962 mm")),
    Sketcher.Constraint("DistanceY", -1, 1, 9, 2, Q("2.725995 mm")),
    Sketcher.Constraint("DistanceY", -1, 1, 20, 1, Q("0.363567 mm")),
    Sketcher.Constraint("DistanceX", -1, 1, 48, 2, Q("1.865962 mm")),
    Sketcher.Constraint("DistanceY", 49, 2, -1, 1, Q("2.725995 mm")),
    Sketcher.Constraint("DistanceY", 60, 1, -1, 1, Q("0.363567 mm")),
])
pad1 = body.newObject("PartDesign::Pad", "Pad")
pad1.Profile = sketch1
pad1.Length = 5
body2 = doc.addObject("PartDesign::Body", "Body001")

# Sketch on XZ plane
sketch2 = body2.newObject("Sketcher::SketchObject", "Sketch001")
sketch2.AttachmentSupport = (doc.getObject("XZ_Plane001"), [""])
sketch2.MapMode = "FlatFace"
sketch2.addGeometry([
    Part.LineSegment(Vector(-43.790888, 29.521398, 0), Vector(-43.790888, 19.521398, 0)),
    Part.LineSegment(Vector(-43.790888, 19.521398, 0), Vector(-37.790888, 19.521398, 0)),
    Part.LineSegment(Vector(-37.790888, 19.521398, 0), Vector(-37.790888, 29.521398, 0)),
    Part.LineSegment(Vector(-37.790888, 29.521398, 0), Vector(-43.790888, 29.521398, 0)),
], False)
sketch2.addConstraint([
    Sketcher.Constraint("Coincident", 0, 2, 1, 1),
    Sketcher.Constraint("Coincident", 1, 2, 2, 1),
    Sketcher.Constraint("Coincident", 2, 2, 3, 1),
    Sketcher.Constraint("Coincident", 3, 2, 0, 1),
    Sketcher.Constraint("Vertical", 0),
    Sketcher.Constraint("Horizontal", 1),
    Sketcher.Constraint("Vertical", 2),
    Sketcher.Constraint("Horizontal", 3),
    Sketcher.Constraint("DistanceX", 1, 1, 1, 2, Q("6 mm")),
    Sketcher.Constraint("DistanceY", 0, 2, 0, 1, Q("10 mm")),
    Sketcher.Constraint("DistanceY", -1, 1, 0, 2, Q("19.521398 mm")),
    Sketcher.Constraint("DistanceX", 0, 2, -1, 1, Q("43.790888 mm")),
])
pad2 = body2.newObject("PartDesign::Pad", "Pad001")
pad2.Profile = sketch2
pad2.Length = 2

doc.recompute()
